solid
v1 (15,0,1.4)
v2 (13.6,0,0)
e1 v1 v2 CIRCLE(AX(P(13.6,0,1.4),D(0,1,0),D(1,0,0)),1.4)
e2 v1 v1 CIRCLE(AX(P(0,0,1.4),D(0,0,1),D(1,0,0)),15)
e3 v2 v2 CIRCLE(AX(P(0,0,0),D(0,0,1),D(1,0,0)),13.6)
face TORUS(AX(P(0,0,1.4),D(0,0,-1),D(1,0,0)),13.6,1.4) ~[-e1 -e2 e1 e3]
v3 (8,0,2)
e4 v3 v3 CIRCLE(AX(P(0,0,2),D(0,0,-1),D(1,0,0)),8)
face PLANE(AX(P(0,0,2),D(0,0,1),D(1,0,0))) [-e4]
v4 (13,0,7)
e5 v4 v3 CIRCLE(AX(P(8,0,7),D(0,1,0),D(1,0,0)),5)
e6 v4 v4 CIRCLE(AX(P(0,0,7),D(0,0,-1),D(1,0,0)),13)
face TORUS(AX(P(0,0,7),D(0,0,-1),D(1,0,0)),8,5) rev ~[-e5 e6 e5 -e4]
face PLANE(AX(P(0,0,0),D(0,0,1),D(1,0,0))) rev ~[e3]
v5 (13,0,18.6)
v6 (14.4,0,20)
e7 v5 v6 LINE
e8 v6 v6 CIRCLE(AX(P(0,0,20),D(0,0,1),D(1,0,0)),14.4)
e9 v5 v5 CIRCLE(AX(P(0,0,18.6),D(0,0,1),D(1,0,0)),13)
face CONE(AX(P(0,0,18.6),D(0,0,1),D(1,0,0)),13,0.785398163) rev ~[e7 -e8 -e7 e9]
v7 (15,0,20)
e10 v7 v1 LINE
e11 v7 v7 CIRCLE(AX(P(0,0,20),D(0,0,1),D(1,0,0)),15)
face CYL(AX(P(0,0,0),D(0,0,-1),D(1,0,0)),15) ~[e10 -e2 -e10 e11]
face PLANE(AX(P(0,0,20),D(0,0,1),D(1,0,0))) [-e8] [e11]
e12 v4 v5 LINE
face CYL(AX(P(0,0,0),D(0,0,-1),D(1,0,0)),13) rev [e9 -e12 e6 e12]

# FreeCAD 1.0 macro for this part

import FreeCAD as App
import Part
import Sketcher

V = App.Vector


def edges_at(feature, points):
    """Names of the edges that pass closest to the given points."""
    edges = feature.Shape.Edges
    near = lambda p: min(range(len(edges)), key=lambda i: edges[i].distToShape(Part.Vertex(*p))[0])
    return sorted({f"Edge{near(p) + 1}" for p in points})

doc = App.newDocument("Part")
params = doc.addObject("Spreadsheet::Sheet", "Params")
for row, (alias, value) in enumerate([
    ("sketch1_diameter", "30 mm"),
    ("pad1_length", "2 mm"),
    ("sketch2_diameter", "30 mm"),
    ("sketch2_diameter2", "26 mm"),
    ("pad2_length", "20 mm"),
    ("fillet_radius", "5 mm"),
    ("chamfer_size", "1.4 mm"),
    ("fillet2_radius", "1.4 mm"),
], start=1):
    params.set(f"A{row}", alias)
    params.set(f"B{row}", "=" + value)
    params.setAlias(f"B{row}", alias)

body = doc.addObject("PartDesign::Body", "Body")

sketch1 = doc.addObject("Sketcher::SketchObject", "Sketch")
body.addObject(sketch1)
sketch1.AttachmentSupport = (doc.XY_Plane, [""])
sketch1.MapMode = "FlatFace"
sketch1.addGeometry(Part.Circle(V(0, 0, 0), V(0, 0, 1), 15), False)
sketch1.addConstraint([
    Sketcher.Constraint("Coincident", 0, 3, -1, 1),
    Sketcher.Constraint("Diameter", 0, 30.0),
])
sketch1.setExpression("Constraints[1]", "Params.sketch1_diameter")
pad1 = doc.addObject("PartDesign::Pad", "Pad")
body.addObject(pad1)
pad1.Profile = sketch1
pad1.setExpression("Length", "Params.pad1_length")

sketch2 = doc.addObject("Sketcher::SketchObject", "Sketch001")
body.addObject(sketch2)
sketch2.AttachmentSupport = (doc.XY_Plane, [""])
sketch2.MapMode = "FlatFace"
sketch2.addGeometry([
    Part.Circle(V(0, 0, 0), V(0, 0, 1), 15),
    Part.Circle(V(0, 0, 0), V(0, 0, 1), 13),
], False)
sketch2.addConstraint([
    Sketcher.Constraint("Coincident", 0, 3, -1, 1),
    Sketcher.Constraint("Coincident", 1, 3, -1, 1),
    Sketcher.Constraint("Diameter", 0, 30.0),
    Sketcher.Constraint("Diameter", 1, 26.0),
])
sketch2.setExpression("Constraints[2]", "Params.sketch2_diameter")
sketch2.setExpression("Constraints[3]", "Params.sketch2_diameter2")
pad2 = doc.addObject("PartDesign::Pad", "Pad001")
body.addObject(pad2)
pad2.Profile = sketch2
pad2.setExpression("Length", "Params.pad2_length")
doc.recompute()

fillet = doc.addObject("PartDesign::Fillet", "Fillet")
body.addObject(fillet)
fillet.Base = (pad2, edges_at(pad2, [(-13, 0, 2)]))
fillet.setExpression("Radius", "Params.fillet_radius")
doc.recompute()

chamfer = doc.addObject("PartDesign::Chamfer", "Chamfer")
body.addObject(chamfer)
chamfer.Base = (fillet, edges_at(fillet, [(-13, 0, 20)]))
chamfer.setExpression("Size", "Params.chamfer_size")
doc.recompute()

fillet2 = doc.addObject("PartDesign::Fillet", "Fillet001")
body.addObject(fillet2)
fillet2.Base = (chamfer, edges_at(chamfer, [(-15, 0, 0)]))
fillet2.setExpression("Radius", "Params.fillet2_radius")

doc.recompute()
